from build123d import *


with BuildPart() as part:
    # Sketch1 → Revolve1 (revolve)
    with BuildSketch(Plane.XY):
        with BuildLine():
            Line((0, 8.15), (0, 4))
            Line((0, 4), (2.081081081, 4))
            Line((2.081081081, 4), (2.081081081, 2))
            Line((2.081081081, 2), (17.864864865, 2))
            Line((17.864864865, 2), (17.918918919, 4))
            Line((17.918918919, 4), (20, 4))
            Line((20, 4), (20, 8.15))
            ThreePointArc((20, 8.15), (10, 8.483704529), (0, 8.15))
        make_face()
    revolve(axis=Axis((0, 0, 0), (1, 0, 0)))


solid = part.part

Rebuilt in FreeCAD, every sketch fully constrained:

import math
import FreeCAD as App
import Part
import Sketcher
from FreeCAD import Vector

doc = App.newDocument("Part")
body = doc.addObject("PartDesign::Body", "Body")

# Sketch on XY plane
sketch1 = body.newObject("Sketcher::SketchObject", "Sketch")
sketch1.AttachmentSupport = (doc.getObject("XY_Plane"), [""])
sketch1.MapMode = "FlatFace"
sketch1.addGeometry([
    Part.LineSegment(Vector(0, 8.15, 0), Vector(0, 4, 0)),  # 0
    Part.LineSegment(Vector(0, 4, 0), Vector(2.081081, 4, 0)),  # 1
    Part.LineSegment(Vector(2.081081, 4, 0), Vector(2.081081, 2, 0)),  # 2
    Part.LineSegment(Vector(2.081081, 2, 0), Vector(17.864865, 2, 0)),  # 3
    Part.LineSegment(Vector(17.864865, 2, 0), Vector(17.918919, 4, 0)),  # 4
    Part.LineSegment(Vector(17.918919, 4, 0), Vector(20, 4, 0)),  # 5
    Part.LineSegment(Vector(20, 4, 0), Vector(20, 8.15, 0)),  # 6
    Part.ArcOfCircle(Part.Circle(Vector(10, -141.516295, 0), Vector(0, 0, 1), 150), math.radians(86.177446), math.radians(93.822554)),  # 7
], False)
sketch1.addConstraint([
    Sketcher.Constraint("Coincident", 0, 2, 1, 1),
    Sketcher.Constraint("Coincident", 1, 2, 2, 1),
    Sketcher.Constraint("Coincident", 2, 2, 3, 1),
    Sketcher.Constraint("Coincident", 3, 2, 4, 1),
    Sketcher.Constraint("Coincident", 4, 2, 5, 1),
    Sketcher.Constraint("Coincident", 5, 2, 6, 1),
    Sketcher.Constraint("Coincident", 6, 2, 7, 1),
    Sketcher.Constraint("Coincident", 7, 2, 0, 1),
    Sketcher.Constraint("Vertical", 0),
    Sketcher.Constraint("Horizontal", 1),
    Sketcher.Constraint("Vertical", 2),
    Sketcher.Constraint("Horizontal", 3),
    Sketcher.Constraint("Horizontal", 5),
    Sketcher.Constraint("Vertical", 6),
    Sketcher.Constraint("PointOnObject", 0, 2, -2),
    Sketcher.Constraint("Horizontal", 1, 2, 4, 2),
    Sketcher.Constraint("Horizontal", 6, 2, 7, 2),
    Sketcher.Constraint("Equal", 1, 5),
    Sketcher.Constraint("Radius", 7, 150.0),
    Sketcher.Constraint("DistanceY", 2, 2, 2, 1, 2.0),
    Sketcher.Constraint("DistanceX", -1, 1, 7, 3, 10.0),
    Sketcher.Constraint("DistanceY", -1, 1, 0, 2, 4.0),
    Sketcher.Constraint("DistanceY", 0, 2, 0, 1, 4.15),
    Sketcher.Constraint("DistanceX", 1, 1, 1, 2, 2.081081),
    Sketcher.Constraint("Distance", 4, 2.00073),
])
revolution = body.newObject("PartDesign::Revolution", "Revolution")
revolution.Profile = sketch1
revolution.ReferenceAxis = (sketch1, ["H_Axis"])
revolution.Angle = 360

doc.recompute()
